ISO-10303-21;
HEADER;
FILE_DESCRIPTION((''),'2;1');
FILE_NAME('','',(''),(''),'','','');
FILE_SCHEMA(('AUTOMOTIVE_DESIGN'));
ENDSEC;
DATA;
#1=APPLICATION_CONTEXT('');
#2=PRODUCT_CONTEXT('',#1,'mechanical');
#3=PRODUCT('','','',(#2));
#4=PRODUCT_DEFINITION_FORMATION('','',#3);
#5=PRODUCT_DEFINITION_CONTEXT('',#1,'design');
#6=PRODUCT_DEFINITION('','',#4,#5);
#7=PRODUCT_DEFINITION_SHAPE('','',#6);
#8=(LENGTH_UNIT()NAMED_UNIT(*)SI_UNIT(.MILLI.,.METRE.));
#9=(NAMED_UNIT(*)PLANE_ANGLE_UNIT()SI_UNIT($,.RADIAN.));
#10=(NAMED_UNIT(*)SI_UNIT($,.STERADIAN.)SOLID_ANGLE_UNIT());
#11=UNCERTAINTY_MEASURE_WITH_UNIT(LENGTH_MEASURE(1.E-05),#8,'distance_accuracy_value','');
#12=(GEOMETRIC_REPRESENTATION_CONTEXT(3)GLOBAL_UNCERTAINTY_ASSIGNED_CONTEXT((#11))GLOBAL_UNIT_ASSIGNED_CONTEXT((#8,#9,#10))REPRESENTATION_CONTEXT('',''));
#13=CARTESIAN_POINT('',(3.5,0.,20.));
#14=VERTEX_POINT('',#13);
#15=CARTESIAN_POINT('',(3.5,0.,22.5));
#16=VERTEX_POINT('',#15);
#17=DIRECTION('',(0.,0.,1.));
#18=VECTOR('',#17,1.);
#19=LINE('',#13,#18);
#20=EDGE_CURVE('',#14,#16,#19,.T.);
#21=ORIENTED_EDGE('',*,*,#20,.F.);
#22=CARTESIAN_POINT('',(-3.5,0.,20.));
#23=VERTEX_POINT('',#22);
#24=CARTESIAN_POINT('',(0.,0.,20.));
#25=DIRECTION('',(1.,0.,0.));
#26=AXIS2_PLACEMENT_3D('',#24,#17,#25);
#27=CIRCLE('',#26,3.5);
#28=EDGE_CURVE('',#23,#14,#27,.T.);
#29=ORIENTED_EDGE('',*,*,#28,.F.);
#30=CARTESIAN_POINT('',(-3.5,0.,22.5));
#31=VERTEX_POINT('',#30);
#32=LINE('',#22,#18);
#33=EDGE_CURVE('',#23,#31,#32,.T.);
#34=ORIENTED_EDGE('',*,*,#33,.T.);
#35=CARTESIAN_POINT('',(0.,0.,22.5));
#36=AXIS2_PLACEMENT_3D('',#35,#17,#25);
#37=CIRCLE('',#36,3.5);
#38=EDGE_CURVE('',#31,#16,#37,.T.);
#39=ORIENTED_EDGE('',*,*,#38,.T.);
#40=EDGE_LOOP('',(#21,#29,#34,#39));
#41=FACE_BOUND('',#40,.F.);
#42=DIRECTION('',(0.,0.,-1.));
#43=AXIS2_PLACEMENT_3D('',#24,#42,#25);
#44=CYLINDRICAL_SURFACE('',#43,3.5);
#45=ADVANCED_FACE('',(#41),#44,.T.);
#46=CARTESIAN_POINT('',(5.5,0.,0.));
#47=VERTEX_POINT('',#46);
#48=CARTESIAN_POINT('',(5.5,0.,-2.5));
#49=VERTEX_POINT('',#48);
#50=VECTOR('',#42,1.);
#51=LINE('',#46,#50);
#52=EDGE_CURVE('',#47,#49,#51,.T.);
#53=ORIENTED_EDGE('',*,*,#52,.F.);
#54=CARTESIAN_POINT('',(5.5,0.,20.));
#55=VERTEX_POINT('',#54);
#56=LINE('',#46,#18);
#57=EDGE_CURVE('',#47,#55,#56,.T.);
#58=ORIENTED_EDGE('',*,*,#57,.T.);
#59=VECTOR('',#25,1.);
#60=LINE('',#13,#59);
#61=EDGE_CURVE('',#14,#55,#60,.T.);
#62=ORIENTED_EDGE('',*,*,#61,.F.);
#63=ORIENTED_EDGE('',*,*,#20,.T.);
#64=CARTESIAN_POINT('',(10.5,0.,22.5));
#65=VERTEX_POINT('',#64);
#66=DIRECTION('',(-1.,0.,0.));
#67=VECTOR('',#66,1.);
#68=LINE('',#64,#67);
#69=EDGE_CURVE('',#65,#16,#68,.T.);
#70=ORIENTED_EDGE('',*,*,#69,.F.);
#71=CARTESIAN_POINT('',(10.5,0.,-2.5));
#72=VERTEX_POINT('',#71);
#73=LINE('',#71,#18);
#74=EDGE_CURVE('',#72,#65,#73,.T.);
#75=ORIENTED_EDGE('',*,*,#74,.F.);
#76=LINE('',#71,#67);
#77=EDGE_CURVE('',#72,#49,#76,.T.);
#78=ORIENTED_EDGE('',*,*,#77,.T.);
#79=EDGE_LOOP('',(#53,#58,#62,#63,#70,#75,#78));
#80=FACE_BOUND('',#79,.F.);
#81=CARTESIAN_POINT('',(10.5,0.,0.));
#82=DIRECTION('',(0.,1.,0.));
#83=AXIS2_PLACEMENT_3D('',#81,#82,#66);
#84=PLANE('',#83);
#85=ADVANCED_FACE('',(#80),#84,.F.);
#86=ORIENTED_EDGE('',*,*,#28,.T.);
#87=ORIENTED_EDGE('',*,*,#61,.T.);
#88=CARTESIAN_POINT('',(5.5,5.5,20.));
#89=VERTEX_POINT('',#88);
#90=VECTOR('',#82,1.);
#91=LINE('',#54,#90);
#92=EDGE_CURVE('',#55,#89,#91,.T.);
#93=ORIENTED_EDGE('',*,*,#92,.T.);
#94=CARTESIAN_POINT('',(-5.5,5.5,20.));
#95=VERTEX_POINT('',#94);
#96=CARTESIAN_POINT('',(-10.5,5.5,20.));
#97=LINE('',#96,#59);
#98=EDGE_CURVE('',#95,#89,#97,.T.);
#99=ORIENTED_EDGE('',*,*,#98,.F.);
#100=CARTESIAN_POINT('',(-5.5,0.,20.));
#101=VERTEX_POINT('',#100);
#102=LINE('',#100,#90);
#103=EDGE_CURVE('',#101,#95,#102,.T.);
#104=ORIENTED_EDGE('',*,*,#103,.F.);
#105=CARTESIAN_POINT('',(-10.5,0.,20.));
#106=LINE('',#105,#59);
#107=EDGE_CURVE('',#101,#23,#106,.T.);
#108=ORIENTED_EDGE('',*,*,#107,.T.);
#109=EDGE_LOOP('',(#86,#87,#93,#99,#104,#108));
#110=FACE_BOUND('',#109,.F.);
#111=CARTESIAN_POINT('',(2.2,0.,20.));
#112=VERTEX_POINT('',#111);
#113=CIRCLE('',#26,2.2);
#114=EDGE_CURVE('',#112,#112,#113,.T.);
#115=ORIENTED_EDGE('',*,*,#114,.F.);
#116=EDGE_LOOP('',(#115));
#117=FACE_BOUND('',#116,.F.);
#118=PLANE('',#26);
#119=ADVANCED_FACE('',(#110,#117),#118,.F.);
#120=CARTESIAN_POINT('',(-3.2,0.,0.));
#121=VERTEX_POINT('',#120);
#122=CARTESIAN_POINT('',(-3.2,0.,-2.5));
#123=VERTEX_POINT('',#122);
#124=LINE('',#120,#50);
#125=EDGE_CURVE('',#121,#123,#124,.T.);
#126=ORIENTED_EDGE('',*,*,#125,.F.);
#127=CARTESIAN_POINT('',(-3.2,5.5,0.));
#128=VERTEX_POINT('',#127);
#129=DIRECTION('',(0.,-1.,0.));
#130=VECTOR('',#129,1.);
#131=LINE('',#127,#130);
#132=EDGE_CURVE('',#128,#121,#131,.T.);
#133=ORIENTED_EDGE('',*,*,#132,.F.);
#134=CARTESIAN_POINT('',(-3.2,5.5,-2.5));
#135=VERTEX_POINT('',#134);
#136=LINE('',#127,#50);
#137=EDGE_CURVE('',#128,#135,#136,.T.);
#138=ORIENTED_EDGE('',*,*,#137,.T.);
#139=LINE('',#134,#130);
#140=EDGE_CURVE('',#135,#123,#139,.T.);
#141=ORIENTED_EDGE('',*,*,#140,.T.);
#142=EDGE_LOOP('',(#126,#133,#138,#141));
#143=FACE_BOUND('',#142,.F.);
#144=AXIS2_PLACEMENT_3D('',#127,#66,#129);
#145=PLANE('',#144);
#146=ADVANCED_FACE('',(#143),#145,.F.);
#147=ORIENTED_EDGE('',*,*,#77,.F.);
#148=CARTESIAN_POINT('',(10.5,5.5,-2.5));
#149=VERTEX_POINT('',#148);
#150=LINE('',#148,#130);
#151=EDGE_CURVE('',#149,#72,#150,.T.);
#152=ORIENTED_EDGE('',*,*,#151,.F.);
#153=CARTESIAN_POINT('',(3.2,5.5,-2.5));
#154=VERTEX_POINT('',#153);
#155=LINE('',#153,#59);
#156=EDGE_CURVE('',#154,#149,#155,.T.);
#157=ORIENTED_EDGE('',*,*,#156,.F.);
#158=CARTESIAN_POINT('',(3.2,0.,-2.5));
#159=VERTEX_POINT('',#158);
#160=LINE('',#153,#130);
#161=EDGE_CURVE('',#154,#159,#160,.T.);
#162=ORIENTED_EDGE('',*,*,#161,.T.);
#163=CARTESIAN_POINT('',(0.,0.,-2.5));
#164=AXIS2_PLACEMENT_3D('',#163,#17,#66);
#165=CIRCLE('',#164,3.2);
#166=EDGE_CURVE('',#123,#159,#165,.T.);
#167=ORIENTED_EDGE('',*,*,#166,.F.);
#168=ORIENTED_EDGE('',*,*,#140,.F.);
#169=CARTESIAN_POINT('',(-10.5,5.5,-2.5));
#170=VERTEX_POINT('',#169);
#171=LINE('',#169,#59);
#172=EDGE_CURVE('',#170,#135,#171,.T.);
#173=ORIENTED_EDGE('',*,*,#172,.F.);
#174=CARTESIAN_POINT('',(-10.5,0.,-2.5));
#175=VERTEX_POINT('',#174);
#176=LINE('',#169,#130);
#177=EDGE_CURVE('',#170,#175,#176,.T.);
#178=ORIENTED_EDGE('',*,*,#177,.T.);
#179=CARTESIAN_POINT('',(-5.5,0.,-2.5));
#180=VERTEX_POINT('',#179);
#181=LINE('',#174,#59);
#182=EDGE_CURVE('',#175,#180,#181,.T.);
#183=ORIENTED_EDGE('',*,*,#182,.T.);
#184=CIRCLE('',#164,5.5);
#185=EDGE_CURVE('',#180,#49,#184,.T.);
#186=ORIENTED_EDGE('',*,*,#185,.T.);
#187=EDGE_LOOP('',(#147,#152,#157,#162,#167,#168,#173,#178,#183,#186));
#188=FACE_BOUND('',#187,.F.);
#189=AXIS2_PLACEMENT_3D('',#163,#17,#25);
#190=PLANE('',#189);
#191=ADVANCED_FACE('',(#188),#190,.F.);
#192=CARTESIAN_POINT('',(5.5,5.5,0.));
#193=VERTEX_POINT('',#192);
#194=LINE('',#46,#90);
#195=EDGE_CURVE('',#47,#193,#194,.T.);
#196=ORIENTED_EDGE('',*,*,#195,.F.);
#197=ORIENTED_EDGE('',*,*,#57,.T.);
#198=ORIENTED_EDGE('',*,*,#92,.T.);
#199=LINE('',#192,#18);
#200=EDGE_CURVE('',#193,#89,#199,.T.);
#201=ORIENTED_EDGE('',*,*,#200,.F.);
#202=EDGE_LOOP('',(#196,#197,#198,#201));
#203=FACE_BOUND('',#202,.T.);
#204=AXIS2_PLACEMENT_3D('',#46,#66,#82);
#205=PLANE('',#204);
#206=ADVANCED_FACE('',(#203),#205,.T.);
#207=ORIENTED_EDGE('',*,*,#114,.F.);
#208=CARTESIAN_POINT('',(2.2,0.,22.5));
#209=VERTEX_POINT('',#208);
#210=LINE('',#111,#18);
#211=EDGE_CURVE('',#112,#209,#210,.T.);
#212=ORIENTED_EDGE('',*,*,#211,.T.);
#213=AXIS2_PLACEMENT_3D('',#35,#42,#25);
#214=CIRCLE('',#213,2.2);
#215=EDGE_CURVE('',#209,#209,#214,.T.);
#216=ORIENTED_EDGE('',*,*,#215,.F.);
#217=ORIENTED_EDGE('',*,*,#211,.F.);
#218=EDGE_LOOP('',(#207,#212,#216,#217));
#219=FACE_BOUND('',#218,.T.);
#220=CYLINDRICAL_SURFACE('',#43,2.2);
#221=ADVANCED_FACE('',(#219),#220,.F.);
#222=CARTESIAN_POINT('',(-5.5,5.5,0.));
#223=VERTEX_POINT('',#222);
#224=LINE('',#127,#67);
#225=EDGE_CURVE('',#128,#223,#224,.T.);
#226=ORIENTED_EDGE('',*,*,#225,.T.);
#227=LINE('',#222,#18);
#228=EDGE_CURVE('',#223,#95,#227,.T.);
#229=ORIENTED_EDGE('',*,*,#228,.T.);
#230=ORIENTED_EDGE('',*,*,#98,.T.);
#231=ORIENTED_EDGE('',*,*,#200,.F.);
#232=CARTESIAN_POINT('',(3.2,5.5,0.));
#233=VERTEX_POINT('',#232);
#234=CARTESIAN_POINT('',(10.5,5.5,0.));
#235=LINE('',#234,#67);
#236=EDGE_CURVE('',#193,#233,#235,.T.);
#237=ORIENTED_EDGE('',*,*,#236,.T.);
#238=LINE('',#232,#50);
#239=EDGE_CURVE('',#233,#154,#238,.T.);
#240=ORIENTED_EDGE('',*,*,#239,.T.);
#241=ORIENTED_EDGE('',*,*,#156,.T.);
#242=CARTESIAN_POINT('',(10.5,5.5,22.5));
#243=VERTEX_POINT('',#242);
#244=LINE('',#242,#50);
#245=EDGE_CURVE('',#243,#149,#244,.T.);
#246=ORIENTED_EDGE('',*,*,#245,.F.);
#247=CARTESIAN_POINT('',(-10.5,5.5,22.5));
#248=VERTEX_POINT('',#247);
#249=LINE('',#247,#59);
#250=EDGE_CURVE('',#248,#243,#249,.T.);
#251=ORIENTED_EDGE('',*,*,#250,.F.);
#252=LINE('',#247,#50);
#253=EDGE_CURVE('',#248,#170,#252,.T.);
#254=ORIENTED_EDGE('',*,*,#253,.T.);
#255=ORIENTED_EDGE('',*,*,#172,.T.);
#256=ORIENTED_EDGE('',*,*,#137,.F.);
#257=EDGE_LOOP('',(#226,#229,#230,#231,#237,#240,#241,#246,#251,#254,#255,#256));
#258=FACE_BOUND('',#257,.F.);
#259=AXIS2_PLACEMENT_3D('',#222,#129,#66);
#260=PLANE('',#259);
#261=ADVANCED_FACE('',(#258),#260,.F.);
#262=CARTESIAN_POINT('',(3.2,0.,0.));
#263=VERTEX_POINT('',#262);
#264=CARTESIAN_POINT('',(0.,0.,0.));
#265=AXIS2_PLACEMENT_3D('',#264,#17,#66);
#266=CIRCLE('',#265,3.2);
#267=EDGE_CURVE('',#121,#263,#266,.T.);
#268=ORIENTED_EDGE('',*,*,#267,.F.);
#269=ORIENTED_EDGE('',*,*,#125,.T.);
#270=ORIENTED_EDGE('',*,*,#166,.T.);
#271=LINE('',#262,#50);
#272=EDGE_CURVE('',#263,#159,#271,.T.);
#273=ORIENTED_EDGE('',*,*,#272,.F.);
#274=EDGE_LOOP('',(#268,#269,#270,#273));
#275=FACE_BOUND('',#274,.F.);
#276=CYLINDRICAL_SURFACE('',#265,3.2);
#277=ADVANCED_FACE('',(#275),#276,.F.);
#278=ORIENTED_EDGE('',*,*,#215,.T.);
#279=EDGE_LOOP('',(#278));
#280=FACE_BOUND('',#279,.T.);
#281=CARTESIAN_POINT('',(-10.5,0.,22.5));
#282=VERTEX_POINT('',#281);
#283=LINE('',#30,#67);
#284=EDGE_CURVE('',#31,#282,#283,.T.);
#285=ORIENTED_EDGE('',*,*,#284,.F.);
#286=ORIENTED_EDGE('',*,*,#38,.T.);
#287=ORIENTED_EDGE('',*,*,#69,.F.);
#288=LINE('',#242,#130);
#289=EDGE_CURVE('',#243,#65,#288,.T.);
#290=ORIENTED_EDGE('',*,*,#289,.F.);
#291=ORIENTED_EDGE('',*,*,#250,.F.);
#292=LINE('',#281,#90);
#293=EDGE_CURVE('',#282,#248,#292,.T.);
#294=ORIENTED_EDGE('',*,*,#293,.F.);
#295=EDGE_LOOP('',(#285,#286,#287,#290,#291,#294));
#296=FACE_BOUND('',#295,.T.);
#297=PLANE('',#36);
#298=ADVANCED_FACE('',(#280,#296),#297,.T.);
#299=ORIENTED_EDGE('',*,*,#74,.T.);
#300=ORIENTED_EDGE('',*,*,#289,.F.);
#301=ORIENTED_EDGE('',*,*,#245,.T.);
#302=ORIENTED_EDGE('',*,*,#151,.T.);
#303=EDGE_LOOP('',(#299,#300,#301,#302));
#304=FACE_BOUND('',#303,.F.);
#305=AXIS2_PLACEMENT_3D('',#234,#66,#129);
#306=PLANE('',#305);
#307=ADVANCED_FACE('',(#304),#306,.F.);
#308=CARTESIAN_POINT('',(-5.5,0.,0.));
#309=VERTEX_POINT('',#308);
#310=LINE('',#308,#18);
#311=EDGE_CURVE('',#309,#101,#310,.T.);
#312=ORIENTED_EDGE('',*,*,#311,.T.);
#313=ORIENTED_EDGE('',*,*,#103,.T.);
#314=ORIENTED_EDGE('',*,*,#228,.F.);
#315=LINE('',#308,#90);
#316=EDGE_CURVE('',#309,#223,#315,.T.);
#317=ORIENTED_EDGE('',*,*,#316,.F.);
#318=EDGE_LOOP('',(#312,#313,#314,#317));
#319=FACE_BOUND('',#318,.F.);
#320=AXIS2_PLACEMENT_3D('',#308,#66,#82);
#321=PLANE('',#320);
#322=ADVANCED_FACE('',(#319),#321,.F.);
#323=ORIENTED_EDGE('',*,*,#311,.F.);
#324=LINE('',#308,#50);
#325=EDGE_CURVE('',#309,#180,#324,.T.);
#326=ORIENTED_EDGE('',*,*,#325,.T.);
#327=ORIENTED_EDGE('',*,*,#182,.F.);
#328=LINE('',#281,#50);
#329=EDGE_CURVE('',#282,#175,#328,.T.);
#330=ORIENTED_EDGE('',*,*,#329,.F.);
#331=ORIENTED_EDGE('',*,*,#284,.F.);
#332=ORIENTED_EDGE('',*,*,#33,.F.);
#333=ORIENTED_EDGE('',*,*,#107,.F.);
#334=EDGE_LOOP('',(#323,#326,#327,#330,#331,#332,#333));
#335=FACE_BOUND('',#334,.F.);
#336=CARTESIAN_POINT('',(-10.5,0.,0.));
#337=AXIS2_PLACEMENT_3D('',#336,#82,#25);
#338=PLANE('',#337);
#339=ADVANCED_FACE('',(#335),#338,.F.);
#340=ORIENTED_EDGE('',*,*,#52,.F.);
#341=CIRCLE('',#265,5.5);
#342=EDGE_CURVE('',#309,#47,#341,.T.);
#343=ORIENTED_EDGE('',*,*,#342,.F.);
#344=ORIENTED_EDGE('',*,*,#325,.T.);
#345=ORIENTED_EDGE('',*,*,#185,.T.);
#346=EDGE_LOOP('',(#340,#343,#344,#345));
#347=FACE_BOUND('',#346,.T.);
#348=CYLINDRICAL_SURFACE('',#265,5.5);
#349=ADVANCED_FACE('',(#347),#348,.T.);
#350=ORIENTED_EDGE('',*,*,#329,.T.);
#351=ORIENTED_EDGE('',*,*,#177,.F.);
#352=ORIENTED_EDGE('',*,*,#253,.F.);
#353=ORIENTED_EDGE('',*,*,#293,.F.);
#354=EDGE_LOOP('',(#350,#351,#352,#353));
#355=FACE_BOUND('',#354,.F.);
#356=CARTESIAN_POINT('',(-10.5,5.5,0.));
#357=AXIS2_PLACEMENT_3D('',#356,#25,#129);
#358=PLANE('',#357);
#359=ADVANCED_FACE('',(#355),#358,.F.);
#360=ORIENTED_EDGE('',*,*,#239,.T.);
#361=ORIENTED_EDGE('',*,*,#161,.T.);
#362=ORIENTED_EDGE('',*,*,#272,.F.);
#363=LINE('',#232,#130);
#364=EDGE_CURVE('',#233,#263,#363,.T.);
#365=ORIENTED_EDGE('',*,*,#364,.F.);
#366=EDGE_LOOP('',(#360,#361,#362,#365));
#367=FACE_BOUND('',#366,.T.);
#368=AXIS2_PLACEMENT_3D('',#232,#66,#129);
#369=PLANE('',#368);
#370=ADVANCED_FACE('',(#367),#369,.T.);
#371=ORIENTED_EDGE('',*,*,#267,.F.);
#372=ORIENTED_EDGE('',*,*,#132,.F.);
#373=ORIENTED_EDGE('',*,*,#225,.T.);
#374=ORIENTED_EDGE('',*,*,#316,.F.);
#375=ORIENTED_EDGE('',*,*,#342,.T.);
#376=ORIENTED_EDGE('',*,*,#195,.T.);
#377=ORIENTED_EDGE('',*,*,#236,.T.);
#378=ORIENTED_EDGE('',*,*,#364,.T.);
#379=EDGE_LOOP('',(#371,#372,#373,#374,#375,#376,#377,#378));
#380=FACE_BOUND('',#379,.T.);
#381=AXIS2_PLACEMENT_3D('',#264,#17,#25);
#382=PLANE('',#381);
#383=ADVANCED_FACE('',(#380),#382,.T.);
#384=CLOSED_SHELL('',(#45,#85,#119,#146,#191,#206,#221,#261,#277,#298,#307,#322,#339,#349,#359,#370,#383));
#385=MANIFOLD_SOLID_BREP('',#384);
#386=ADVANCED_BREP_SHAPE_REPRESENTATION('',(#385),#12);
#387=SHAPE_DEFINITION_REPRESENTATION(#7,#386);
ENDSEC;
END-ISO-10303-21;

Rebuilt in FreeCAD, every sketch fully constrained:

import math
import FreeCAD as App
import Part
import Sketcher

V = App.Vector
Q = App.Units.Quantity


def add_polygon(sketch, points):
    """Adds a closed chain of lines whose ends are joined by coincident constraints."""
    first, n = sketch.GeometryCount, len(points)
    for a, b in zip(points, points[1:] + points[:1]):
        sketch.addGeometry(Part.LineSegment(App.Vector(*a, 0), App.Vector(*b, 0)), False)
    for i in range(n):
        sketch.addConstraint(Sketcher.Constraint("Coincident", first + i, 2, first + (i + 1) % n, 1))

doc = App.newDocument("Part")
body = doc.addObject("PartDesign::Body", "Body")
body.AllowCompound = True

# Sketch on XY plane
sketch1 = body.newObject("Sketcher::SketchObject", "Sketch")
sketch1.AttachmentSupport = (doc.getObject("XY_Plane"), [""])
sketch1.MapMode = "FlatFace"
add_polygon(sketch1, [(-10.5, 0), (-5.5, 0), (-5.5, 5.5), (-10.5, 5.5)])  # lines 0-3
add_polygon(sketch1, [(5.5, 5.5), (5.5, 0), (10.5, 0), (10.5, 5.5)])  # lines 4-7
sketch1.addConstraint(Sketcher.Constraint("Horizontal", 0))
sketch1.addConstraint(Sketcher.Constraint("Vertical", 1))
sketch1.addConstraint(Sketcher.Constraint("Horizontal", 2))
sketch1.addConstraint(Sketcher.Constraint("Vertical", 3))
sketch1.addConstraint(Sketcher.Constraint("Vertical", 4))
sketch1.addConstraint(Sketcher.Constraint("Horizontal", 5))
sketch1.addConstraint(Sketcher.Constraint("Vertical", 6))
sketch1.addConstraint(Sketcher.Constraint("Horizontal", 7))
sketch1.addConstraint(Sketcher.Constraint("Symmetric", 0, 2, 4, 2, -1, 1))
sketch1.addConstraint(Sketcher.Constraint("Symmetric", 3, 2, 5, 2, -2))
sketch1.addConstraint(Sketcher.Constraint("Horizontal", 2, 2, 6, 2))
sketch1.addConstraint(Sketcher.Constraint("DistanceX", 0, 1, 0, 2, Q("5 mm")))
sketch1.addConstraint(Sketcher.Constraint("DistanceX", 0, 2, 4, 2, Q("11 mm")))
sketch1.addConstraint(Sketcher.Constraint("DistanceY", 1, 1, 1, 2, Q("5.5 mm")))
pad1 = body.newObject("PartDesign::Pad", "Pad")
pad1.Profile = sketch1
pad1.Length = 20

# Sketch on XY plane
sketch2 = body.newObject("Sketcher::SketchObject", "Sketch001")
sketch2.AttachmentSupport = (doc.getObject("XY_Plane"), [""])
sketch2.MapMode = "FlatFace"
sketch2.addGeometry(Part.ArcOfCircle(Part.Circle(V(0, 0, 0), V(0, 0, 1), 3.2), math.radians(180), math.radians(360)), False)
sketch2.addGeometry(Part.LineSegment(V(-3.2, 0, 0), V(-3.2, 5.5, 0)), False)
sketch2.addGeometry(Part.LineSegment(V(-3.2, 5.5, 0), V(-10.5, 5.5, 0)), False)
sketch2.addGeometry(Part.LineSegment(V(-10.5, 5.5, 0), V(-10.5, 0, 0)), False)
sketch2.addGeometry(Part.LineSegment(V(-10.5, 0, 0), V(-5.5, 0, 0)), False)
sketch2.addGeometry(Part.ArcOfCircle(Part.Circle(V(0, 0, 0), V(0, 0, 1), 5.5), math.radians(180), math.radians(360)), False)
sketch2.addGeometry(Part.LineSegment(V(5.5, 0, 0), V(10.5, 0, 0)), False)
sketch2.addGeometry(Part.LineSegment(V(10.5, 0, 0), V(10.5, 5.5, 0)), False)
sketch2.addGeometry(Part.LineSegment(V(10.5, 5.5, 0), V(3.2, 5.5, 0)), False)
sketch2.addGeometry(Part.LineSegment(V(3.2, 5.5, 0), V(3.2, 0, 0)), False)
sketch2.addConstraint(Sketcher.Constraint("Tangent", 0, 1, 1, 1))
sketch2.addConstraint(Sketcher.Constraint("Coincident", 1, 2, 2, 1))
sketch2.addConstraint(Sketcher.Constraint("Coincident", 2, 2, 3, 1))
sketch2.addConstraint(Sketcher.Constraint("Coincident", 3, 2, 4, 1))
sketch2.addConstraint(Sketcher.Constraint("Coincident", 4, 2, 5, 1))
sketch2.addConstraint(Sketcher.Constraint("Coincident", 5, 2, 6, 1))
sketch2.addConstraint(Sketcher.Constraint("Coincident", 6, 2, 7, 1))
sketch2.addConstraint(Sketcher.Constraint("Coincident", 7, 2, 8, 1))
sketch2.addConstraint(Sketcher.Constraint("Coincident", 8, 2, 9, 1))
sketch2.addConstraint(Sketcher.Constraint("Tangent", 9, 2, 0, 2))
sketch2.addConstraint(Sketcher.Constraint("Vertical", 1))
sketch2.addConstraint(Sketcher.Constraint("Horizontal", 2))
sketch2.addConstraint(Sketcher.Constraint("Vertical", 3))
sketch2.addConstraint(Sketcher.Constraint("Horizontal", 4))
sketch2.addConstraint(Sketcher.Constraint("Horizontal", 6))
sketch2.addConstraint(Sketcher.Constraint("Vertical", 7))
sketch2.addConstraint(Sketcher.Constraint("Horizontal", 8))
sketch2.addConstraint(Sketcher.Constraint("Vertical", 9))
sketch2.addConstraint(Sketcher.Constraint("Coincident", 0, 3, -1, 1))
sketch2.addConstraint(Sketcher.Constraint("Coincident", 5, 3, -1, 1))
sketch2.addConstraint(Sketcher.Constraint("Symmetric", 3, 2, 6, 2, -1, 1))
sketch2.addConstraint(Sketcher.Constraint("PointOnObject", 3, 2, -1))
sketch2.addConstraint(Sketcher.Constraint("Horizontal", 2, 2, 7, 2))
sketch2.addConstraint(Sketcher.Constraint("Radius", 0, Q("3.2 mm")))
sketch2.addConstraint(Sketcher.Constraint("Radius", 5, Q("5.5 mm")))
sketch2.addConstraint(Sketcher.Constraint("DistanceX", 4, 1, 4, 2, Q("5 mm")))
sketch2.addConstraint(Sketcher.Constraint("DistanceY", 1, 1, 1, 2, Q("5.5 mm")))
pad2 = body.newObject("PartDesign::Pad", "Pad001")
pad2.Profile = sketch2
pad2.Length = 2.5
pad2.Reversed = True

# Sketch on XY plane
sketch3 = body.newObject("Sketcher::SketchObject", "Sketch002")
sketch3.AttachmentSupport = (doc.getObject("XY_Plane"), [""])
sketch3.MapMode = "FlatFace"
sketch3.AttachmentOffset = App.Placement(V(0, 0, 20), App.Rotation())
sketch3.addGeometry(Part.ArcOfCircle(Part.Circle(V(0, 0, 0), V(0, 0, 1), 3.5), math.radians(180), math.radians(360)), False)
sketch3.addGeometry(Part.LineSegment(V(3.5, 0, 0), V(10.5, 0, 0)), False)
sketch3.addGeometry(Part.LineSegment(V(10.5, 0, 0), V(10.5, 5.5, 0)), False)
sketch3.addGeometry(Part.LineSegment(V(10.5, 5.5, 0), V(-10.5, 5.5, 0)), False)
sketch3.addGeometry(Part.LineSegment(V(-10.5, 5.5, 0), V(-10.5, 0, 0)), False)
sketch3.addGeometry(Part.LineSegment(V(-10.5, 0, 0), V(-3.5, 0, 0)), False)
sketch3.addGeometry(Part.Circle(V(0, 0, 0), V(0, 0, 1), 2.2), False)
sketch3.addConstraint(Sketcher.Constraint("Coincident", 0, 2, 1, 1))
sketch3.addConstraint(Sketcher.Constraint("Coincident", 1, 2, 2, 1))
sketch3.addConstraint(Sketcher.Constraint("Coincident", 2, 2, 3, 1))
sketch3.addConstraint(Sketcher.Constraint("Coincident", 3, 2, 4, 1))
sketch3.addConstraint(Sketcher.Constraint("Coincident", 4, 2, 5, 1))
sketch3.addConstraint(Sketcher.Constraint("Coincident", 5, 2, 0, 1))
sketch3.addConstraint(Sketcher.Constraint("Horizontal", 1))
sketch3.addConstraint(Sketcher.Constraint("Vertical", 2))
sketch3.addConstraint(Sketcher.Constraint("Horizontal", 3))
sketch3.addConstraint(Sketcher.Constraint("Vertical", 4))
sketch3.addConstraint(Sketcher.Constraint("Horizontal", 5))
sketch3.addConstraint(Sketcher.Constraint("Coincident", 0, 3, -1, 1))
sketch3.addConstraint(Sketcher.Constraint("Coincident", 6, 3, -1, 1))
sketch3.addConstraint(Sketcher.Constraint("Symmetric", 1, 2, 4, 2, -1, 1))
sketch3.addConstraint(Sketcher.Constraint("PointOnObject", 0, 2, -1))
sketch3.addConstraint(Sketcher.Constraint("Diameter", 6, Q("4.4 mm")))
sketch3.addConstraint(Sketcher.Constraint("Radius", 0, Q("3.5 mm")))
sketch3.addConstraint(Sketcher.Constraint("DistanceX", 1, 1, 1, 2, Q("7 mm")))
sketch3.addConstraint(Sketcher.Constraint("DistanceY", 2, 1, 2, 2, Q("5.5 mm")))
pad3 = body.newObject("PartDesign::Pad", "Pad002")
pad3.Profile = sketch3
pad3.Length = 2.5

doc.recompute()
